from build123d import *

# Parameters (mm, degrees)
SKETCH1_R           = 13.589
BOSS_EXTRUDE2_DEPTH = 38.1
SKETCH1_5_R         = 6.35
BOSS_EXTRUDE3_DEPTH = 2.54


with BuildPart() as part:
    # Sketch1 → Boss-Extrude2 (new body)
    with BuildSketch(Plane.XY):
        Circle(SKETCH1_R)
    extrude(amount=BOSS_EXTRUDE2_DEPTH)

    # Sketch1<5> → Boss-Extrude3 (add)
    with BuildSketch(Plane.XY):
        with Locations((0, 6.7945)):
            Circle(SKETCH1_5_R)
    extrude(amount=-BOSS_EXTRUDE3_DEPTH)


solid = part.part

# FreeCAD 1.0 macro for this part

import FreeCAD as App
import Part
import Sketcher

V = App.Vector
Q = App.Units.Quantity

doc = App.newDocument("Part")
body = doc.addObject("PartDesign::Body", "Body")

# Sketch on XY plane
sketch1 = body.newObject("Sketcher::SketchObject", "Sketch")
sketch1.AttachmentSupport = (doc.getObject("XY_Plane"), [""])
sketch1.MapMode = "FlatFace"
sketch1.addGeometry(Part.Circle(V(0, 0, 0), V(0, 0, 1), 13.589), False)
sketch1.addConstraint([
    Sketcher.Constraint("Coincident", 0, 3, -1, 1),
    Sketcher.Constraint("Diameter", 0, Q("1.07 in")),
])
pad1 = body.newObject("PartDesign::Pad", "Pad")
pad1.Profile = sketch1
pad1.Length = Q("1.5 in")

# Sketch on XY plane
sketch2 = body.newObject("Sketcher::SketchObject", "Sketch001")
sketch2.AttachmentSupport = (doc.getObject("XY_Plane"), [""])
sketch2.MapMode = "FlatFace"
sketch2.addGeometry(Part.Circle(V(0, 6.7945, 0), V(0, 0, 1), 6.35), False)
sketch2.addConstraint([
    Sketcher.Constraint("PointOnObject", 0, 3, -2),
    Sketcher.Constraint("Diameter", 0, Q("0.5 in")),
    Sketcher.Constraint("DistanceY", -1, 1, 0, 3, Q("0.2675 in")),
])
pad2 = body.newObject("PartDesign::Pad", "Pad001")
pad2.Profile = sketch2
pad2.Length = Q("0.1 in")
pad2.Reversed = True

doc.recompute()
